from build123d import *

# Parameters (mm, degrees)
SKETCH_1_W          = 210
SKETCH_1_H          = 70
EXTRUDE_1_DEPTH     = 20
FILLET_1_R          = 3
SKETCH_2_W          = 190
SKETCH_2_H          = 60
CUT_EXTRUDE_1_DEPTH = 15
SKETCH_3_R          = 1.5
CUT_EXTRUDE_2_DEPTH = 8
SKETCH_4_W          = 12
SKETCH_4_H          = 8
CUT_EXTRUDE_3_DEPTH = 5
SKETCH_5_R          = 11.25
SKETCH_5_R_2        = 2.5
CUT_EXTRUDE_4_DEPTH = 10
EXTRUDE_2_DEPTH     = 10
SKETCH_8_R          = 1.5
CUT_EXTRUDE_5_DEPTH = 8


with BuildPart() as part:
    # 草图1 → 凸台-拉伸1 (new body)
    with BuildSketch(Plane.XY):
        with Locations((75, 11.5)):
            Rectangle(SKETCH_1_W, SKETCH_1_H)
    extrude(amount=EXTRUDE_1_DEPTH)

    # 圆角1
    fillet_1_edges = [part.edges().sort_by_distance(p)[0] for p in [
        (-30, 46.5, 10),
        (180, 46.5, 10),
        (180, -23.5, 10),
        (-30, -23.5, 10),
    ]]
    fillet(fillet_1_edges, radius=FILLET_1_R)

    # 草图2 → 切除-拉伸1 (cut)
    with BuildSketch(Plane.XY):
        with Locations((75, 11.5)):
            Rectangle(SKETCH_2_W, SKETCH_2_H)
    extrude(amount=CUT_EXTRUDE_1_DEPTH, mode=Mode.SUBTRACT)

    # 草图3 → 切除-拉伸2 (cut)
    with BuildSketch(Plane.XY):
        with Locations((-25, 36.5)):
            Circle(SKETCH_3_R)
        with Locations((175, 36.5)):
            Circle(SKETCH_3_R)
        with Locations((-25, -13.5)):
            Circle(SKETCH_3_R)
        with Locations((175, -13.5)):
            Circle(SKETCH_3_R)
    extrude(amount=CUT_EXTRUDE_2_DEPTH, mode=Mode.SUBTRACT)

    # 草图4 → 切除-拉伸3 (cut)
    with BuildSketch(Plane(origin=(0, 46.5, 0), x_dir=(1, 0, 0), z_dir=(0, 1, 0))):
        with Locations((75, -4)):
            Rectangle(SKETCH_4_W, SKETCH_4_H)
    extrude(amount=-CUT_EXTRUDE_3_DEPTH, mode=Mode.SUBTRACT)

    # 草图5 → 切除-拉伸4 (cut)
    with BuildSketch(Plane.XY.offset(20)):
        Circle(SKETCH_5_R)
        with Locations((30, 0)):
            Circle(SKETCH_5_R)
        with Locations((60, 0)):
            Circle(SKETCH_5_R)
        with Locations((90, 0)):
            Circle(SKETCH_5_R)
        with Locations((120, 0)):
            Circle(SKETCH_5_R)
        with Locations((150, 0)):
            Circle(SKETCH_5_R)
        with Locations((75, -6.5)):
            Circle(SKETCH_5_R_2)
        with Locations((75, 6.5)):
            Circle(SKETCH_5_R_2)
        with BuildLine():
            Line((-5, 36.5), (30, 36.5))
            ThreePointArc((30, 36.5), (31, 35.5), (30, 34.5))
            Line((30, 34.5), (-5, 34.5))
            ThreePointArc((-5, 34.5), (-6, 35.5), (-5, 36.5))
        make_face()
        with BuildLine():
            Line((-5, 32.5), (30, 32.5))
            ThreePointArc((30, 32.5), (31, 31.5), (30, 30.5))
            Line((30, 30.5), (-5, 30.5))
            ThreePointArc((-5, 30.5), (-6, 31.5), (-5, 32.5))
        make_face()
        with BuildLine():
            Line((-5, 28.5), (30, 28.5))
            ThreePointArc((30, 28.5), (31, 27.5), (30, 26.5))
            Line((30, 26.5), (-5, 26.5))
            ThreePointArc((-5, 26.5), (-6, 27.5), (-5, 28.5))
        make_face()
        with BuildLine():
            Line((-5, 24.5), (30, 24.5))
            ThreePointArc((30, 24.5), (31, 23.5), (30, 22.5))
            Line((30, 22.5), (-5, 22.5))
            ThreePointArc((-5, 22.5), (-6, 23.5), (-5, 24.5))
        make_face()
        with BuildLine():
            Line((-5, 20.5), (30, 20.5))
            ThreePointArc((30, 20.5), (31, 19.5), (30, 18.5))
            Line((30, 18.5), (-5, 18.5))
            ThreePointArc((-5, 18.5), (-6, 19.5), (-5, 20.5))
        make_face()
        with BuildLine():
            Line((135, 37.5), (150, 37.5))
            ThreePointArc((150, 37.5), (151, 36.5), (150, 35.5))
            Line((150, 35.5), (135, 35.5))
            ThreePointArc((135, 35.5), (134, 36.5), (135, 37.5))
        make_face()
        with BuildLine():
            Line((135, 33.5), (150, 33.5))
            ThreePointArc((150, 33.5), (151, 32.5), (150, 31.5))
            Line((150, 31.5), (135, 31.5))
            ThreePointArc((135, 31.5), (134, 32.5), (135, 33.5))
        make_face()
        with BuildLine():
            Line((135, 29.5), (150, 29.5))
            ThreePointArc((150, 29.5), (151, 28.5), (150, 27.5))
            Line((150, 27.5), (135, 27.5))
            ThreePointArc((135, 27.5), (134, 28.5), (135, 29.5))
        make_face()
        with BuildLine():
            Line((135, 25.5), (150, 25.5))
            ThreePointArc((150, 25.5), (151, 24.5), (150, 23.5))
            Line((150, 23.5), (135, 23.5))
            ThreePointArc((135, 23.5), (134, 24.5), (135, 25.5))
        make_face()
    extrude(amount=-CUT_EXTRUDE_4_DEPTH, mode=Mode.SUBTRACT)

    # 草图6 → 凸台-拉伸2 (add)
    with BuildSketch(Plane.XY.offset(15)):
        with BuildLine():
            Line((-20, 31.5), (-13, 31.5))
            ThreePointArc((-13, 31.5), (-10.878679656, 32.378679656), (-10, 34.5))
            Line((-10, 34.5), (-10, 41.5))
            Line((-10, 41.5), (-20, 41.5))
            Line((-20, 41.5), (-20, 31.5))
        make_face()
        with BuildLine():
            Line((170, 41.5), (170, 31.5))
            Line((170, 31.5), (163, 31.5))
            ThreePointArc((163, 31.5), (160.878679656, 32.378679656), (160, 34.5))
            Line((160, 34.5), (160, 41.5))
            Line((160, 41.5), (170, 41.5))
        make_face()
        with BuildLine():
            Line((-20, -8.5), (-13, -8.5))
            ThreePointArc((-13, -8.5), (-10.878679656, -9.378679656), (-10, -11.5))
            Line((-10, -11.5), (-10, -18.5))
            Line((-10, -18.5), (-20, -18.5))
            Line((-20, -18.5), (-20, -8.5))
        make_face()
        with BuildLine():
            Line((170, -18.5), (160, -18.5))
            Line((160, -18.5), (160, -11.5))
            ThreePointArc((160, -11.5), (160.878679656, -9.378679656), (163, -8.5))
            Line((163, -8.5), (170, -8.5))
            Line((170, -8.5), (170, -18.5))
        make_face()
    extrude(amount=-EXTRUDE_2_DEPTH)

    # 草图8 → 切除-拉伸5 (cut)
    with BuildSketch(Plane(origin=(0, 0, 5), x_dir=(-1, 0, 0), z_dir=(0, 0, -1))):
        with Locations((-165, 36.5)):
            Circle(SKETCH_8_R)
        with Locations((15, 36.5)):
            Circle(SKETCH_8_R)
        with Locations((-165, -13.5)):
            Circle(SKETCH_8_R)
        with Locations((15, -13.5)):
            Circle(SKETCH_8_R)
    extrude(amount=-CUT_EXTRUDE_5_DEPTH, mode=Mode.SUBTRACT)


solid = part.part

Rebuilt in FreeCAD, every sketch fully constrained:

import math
import FreeCAD as App
import Part
import Sketcher
Q = App.Units.Quantity


def edges_at(feature, points):
    """Names of the edges that pass closest to the given points."""
    edges = feature.Shape.Edges
    near = lambda p: min(range(len(edges)), key=lambda i: edges[i].distToShape(Part.Vertex(*p))[0])
    return sorted({f"Edge{near(p) + 1}" for p in points})

doc = App.newDocument("Part")
body = doc.addObject("PartDesign::Body", "Body")

# Sketch on XY plane
sketch1 = doc.addObject("Sketcher::SketchObject", "Sketch")
body.addObject(sketch1)
sketch1.AttachmentSupport = (doc.XY_Plane, [""])
sketch1.MapMode = "FlatFace"
sketch1.addGeometry([
    Part.LineSegment(App.Vector(-30, 46, 0), App.Vector(-30, -24, 0)),
    Part.LineSegment(App.Vector(-30, -24, 0), App.Vector(180, -24, 0)),
    Part.LineSegment(App.Vector(180, -24, 0), App.Vector(180, 46, 0)),
    Part.LineSegment(App.Vector(180, 46, 0), App.Vector(-30, 46, 0)),
], False)
sketch1.addConstraint([
    Sketcher.Constraint("Coincident", 0, 2, 1, 1),
    Sketcher.Constraint("Coincident", 1, 2, 2, 1),
    Sketcher.Constraint("Coincident", 2, 2, 3, 1),
    Sketcher.Constraint("Coincident", 3, 2, 0, 1),
    Sketcher.Constraint("Vertical", 0),
    Sketcher.Constraint("Horizontal", 1),
    Sketcher.Constraint("Vertical", 2),
    Sketcher.Constraint("Horizontal", 3),
    Sketcher.Constraint("DistanceX", 1, 1, 1, 2, Q("210 mm")),
    Sketcher.Constraint("DistanceY", 0, 2, 0, 1, Q("70 mm")),
    Sketcher.Constraint("DistanceX", 0, 2, -1, 1, Q("30 mm")),
    Sketcher.Constraint("DistanceY", 0, 2, -1, 1, Q("23.5 mm")),
])
pad1 = doc.addObject("PartDesign::Pad", "Pad")
body.addObject(pad1)
pad1.Profile = sketch1
pad1.Length = 20
doc.recompute()

fillet = doc.addObject("PartDesign::Fillet", "Fillet")
body.addObject(fillet)
fillet.Base = (pad1, edges_at(pad1, [
    (-30, 46.5, 10),
    (180, 46.5, 10),
    (180, -23.5, 10),
    (-30, -23.5, 10),
]))
fillet.Radius = 3

# Sketch on XY plane
sketch2 = doc.addObject("Sketcher::SketchObject", "Sketch001")
body.addObject(sketch2)
sketch2.AttachmentSupport = (doc.XY_Plane, [""])
sketch2.MapMode = "FlatFace"
sketch2.addGeometry([
    Part.LineSegment(App.Vector(-20, 42, 0), App.Vector(-20, -18, 0)),
    Part.LineSegment(App.Vector(-20, -18, 0), App.Vector(170, -18, 0)),
    Part.LineSegment(App.Vector(170, -18, 0), App.Vector(170, 42, 0)),
    Part.LineSegment(App.Vector(170, 42, 0), App.Vector(-20, 42, 0)),
], False)
sketch2.addConstraint([
    Sketcher.Constraint("Coincident", 0, 2, 1, 1),
    Sketcher.Constraint("Coincident", 1, 2, 2, 1),
    Sketcher.Constraint("Coincident", 2, 2, 3, 1),
    Sketcher.Constraint("Coincident", 3, 2, 0, 1),
    Sketcher.Constraint("Vertical", 0),
    Sketcher.Constraint("Horizontal", 1),
    Sketcher.Constraint("Vertical", 2),
    Sketcher.Constraint("Horizontal", 3),
    Sketcher.Constraint("DistanceX", 1, 1, 1, 2, Q("190 mm")),
    Sketcher.Constraint("DistanceY", 0, 2, 0, 1, Q("60 mm")),
    Sketcher.Constraint("DistanceX", 0, 2, -1, 1, Q("20 mm")),
    Sketcher.Constraint("DistanceY", 0, 2, -1, 1, Q("18.5 mm")),
])
pocket1 = doc.addObject("PartDesign::Pocket", "Pocket")
body.addObject(pocket1)
pocket1.Profile = sketch2
pocket1.Length = 15
pocket1.Reversed = True

# Sketch on XY plane
sketch3 = doc.addObject("Sketcher::SketchObject", "Sketch002")
body.addObject(sketch3)
sketch3.AttachmentSupport = (doc.XY_Plane, [""])
sketch3.MapMode = "FlatFace"
sketch3.addGeometry([
    Part.Circle(App.Vector(-25, 36.5, 0), App.Vector(0, 0, 1), 1.5),
    Part.Circle(App.Vector(175, 36.5, 0), App.Vector(0, 0, 1), 1.5),
    Part.Circle(App.Vector(-25, -13.5, 0), App.Vector(0, 0, 1), 1.5),
    Part.Circle(App.Vector(175, -13.5, 0), App.Vector(0, 0, 1), 1.5),
], False)
sketch3.addConstraint([
    Sketcher.Constraint("Equal", 0, 1),
    Sketcher.Constraint("Equal", 1, 2),
    Sketcher.Constraint("Equal", 2, 3),
    Sketcher.Constraint("Horizontal", 0, 3, 1, 3),
    Sketcher.Constraint("Horizontal", 2, 3, 3, 3),
    Sketcher.Constraint("Vertical", 0, 3, 2, 3),
    Sketcher.Constraint("Vertical", 1, 3, 3, 3),
    Sketcher.Constraint("Diameter", 0, Q("3 mm")),
    Sketcher.Constraint("DistanceX", 0, 3, -1, 1, Q("25 mm")),
    Sketcher.Constraint("DistanceX", -1, 1, 1, 3, Q("175 mm")),
    Sketcher.Constraint("DistanceY", 2, 3, 0, 3, Q("50 mm")),
    Sketcher.Constraint("DistanceY", -1, 1, 0, 3, Q("36.5 mm")),
])
pocket2 = doc.addObject("PartDesign::Pocket", "Pocket001")
body.addObject(pocket2)
pocket2.Profile = sketch3
pocket2.Length = 8
pocket2.Reversed = True

# Sketch on XZ plane
sketch4 = doc.addObject("Sketcher::SketchObject", "Sketch003")
body.addObject(sketch4)
sketch4.AttachmentSupport = (doc.XZ_Plane, [""])
sketch4.MapMode = "FlatFace"
sketch4.AttachmentOffset = App.Placement(App.Vector(0, 0, -46.5), App.Rotation())
sketch4.addGeometry([
    Part.LineSegment(App.Vector(69, 0, 0), App.Vector(69, 8, 0)),
    Part.LineSegment(App.Vector(69, 8, 0), App.Vector(81, 8, 0)),
    Part.LineSegment(App.Vector(81, 8, 0), App.Vector(81, 0, 0)),
    Part.LineSegment(App.Vector(81, 0, 0), App.Vector(69, 0, 0)),
], False)
sketch4.addConstraint([
    Sketcher.Constraint("Coincident", 0, 2, 1, 1),
    Sketcher.Constraint("Coincident", 1, 2, 2, 1),
    Sketcher.Constraint("Coincident", 2, 2, 3, 1),
    Sketcher.Constraint("Coincident", 3, 2, 0, 1),
    Sketcher.Constraint("Vertical", 0),
    Sketcher.Constraint("Horizontal", 1),
    Sketcher.Constraint("Vertical", 2),
    Sketcher.Constraint("Horizontal", 3),
    Sketcher.Constraint("PointOnObject", 2, 2, -1),
    Sketcher.Constraint("DistanceX", 1, 1, 1, 2, Q("12 mm")),
    Sketcher.Constraint("DistanceY", 0, 1, 0, 2, Q("8 mm")),
    Sketcher.Constraint("DistanceX", -1, 1, 0, 2, Q("69 mm")),
])
pocket3 = doc.addObject("PartDesign::Pocket", "Pocket002")
body.addObject(pocket3)
pocket3.Profile = sketch4
pocket3.Length = 5
pocket3.Reversed = True

# Sketch on XY plane
sketch5 = doc.addObject("Sketcher::SketchObject", "Sketch004")
body.addObject(sketch5)
sketch5.AttachmentSupport = (doc.XY_Plane, [""])
sketch5.MapMode = "FlatFace"
sketch5.AttachmentOffset = App.Placement(App.Vector(0, 0, 20), App.Rotation())
sketch5.addGeometry([
    Part.Circle(App.Vector(0, 0, 0), App.Vector(0, 0, 1), 11.2),  # 0
    Part.Circle(App.Vector(30, 0, 0), App.Vector(0, 0, 1), 11.2),  # 1
    Part.Circle(App.Vector(60, 0, 0), App.Vector(0, 0, 1), 11.2),  # 2
    Part.Circle(App.Vector(90, 0, 0), App.Vector(0, 0, 1), 11.2),  # 3
    Part.Circle(App.Vector(120, 0, 0), App.Vector(0, 0, 1), 11.2),  # 4
    Part.Circle(App.Vector(150, 0, 0), App.Vector(0, 0, 1), 11.2),  # 5
    Part.Circle(App.Vector(75, -6.5, 0), App.Vector(0, 0, 1), 2.5),  # 6
    Part.Circle(App.Vector(75, 6.5, 0), App.Vector(0, 0, 1), 2.5),  # 7
    Part.LineSegment(App.Vector(30, 36.5, 0), App.Vector(-5, 36.5, 0)),  # 8
    Part.ArcOfCircle(Part.Circle(App.Vector(-5, 35.5, 0), App.Vector(0, 0, 1), 1), math.radians(90), math.radians(270)),  # 9
    Part.LineSegment(App.Vector(-5, 34.5, 0), App.Vector(30, 34.5, 0)),  # 10
    Part.ArcOfCircle(Part.Circle(App.Vector(30, 35.5, 0), App.Vector(0, 0, 1), 1), math.radians(-90), math.radians(90)),  # 11
    Part.LineSegment(App.Vector(30, 32.5, 0), App.Vector(-5, 32.5, 0)),  # 12
    Part.ArcOfCircle(Part.Circle(App.Vector(-5, 31.5, 0), App.Vector(0, 0, 1), 1), math.radians(90), math.radians(270)),  # 13
    Part.LineSegment(App.Vector(-5, 30.5, 0), App.Vector(30, 30.5, 0)),  # 14
    Part.ArcOfCircle(Part.Circle(App.Vector(30, 31.5, 0), App.Vector(0, 0, 1), 1), math.radians(-90), math.radians(90)),  # 15
    Part.LineSegment(App.Vector(30, 28.5, 0), App.Vector(-5, 28.5, 0)),  # 16
    Part.ArcOfCircle(Part.Circle(App.Vector(-5, 27.5, 0), App.Vector(0, 0, 1), 1), math.radians(90), math.radians(270)),  # 17
    Part.LineSegment(App.Vector(-5, 26.5, 0), App.Vector(30, 26.5, 0)),  # 18
    Part.ArcOfCircle(Part.Circle(App.Vector(30, 27.5, 0), App.Vector(0, 0, 1), 1), math.radians(-90), math.radians(90)),  # 19
    Part.LineSegment(App.Vector(30, 24.5, 0), App.Vector(-5, 24.5, 0)),  # 20
    Part.ArcOfCircle(Part.Circle(App.Vector(-5, 23.5, 0), App.Vector(0, 0, 1), 1), math.radians(90), math.radians(270)),  # 21
    Part.LineSegment(App.Vector(-5, 22.5, 0), App.Vector(30, 22.5, 0)),  # 22
    Part.ArcOfCircle(Part.Circle(App.Vector(30, 23.5, 0), App.Vector(0, 0, 1), 1), math.radians(-90), math.radians(90)),  # 23
    Part.LineSegment(App.Vector(30, 20.5, 0), App.Vector(-5, 20.5, 0)),  # 24
    Part.ArcOfCircle(Part.Circle(App.Vector(-5, 19.5, 0), App.Vector(0, 0, 1), 1), math.radians(90), math.radians(270)),  # 25
    Part.LineSegment(App.Vector(-5, 18.5, 0), App.Vector(30, 18.5, 0)),  # 26
    Part.ArcOfCircle(Part.Circle(App.Vector(30, 19.5, 0), App.Vector(0, 0, 1), 1), math.radians(-90), math.radians(90)),  # 27
    Part.LineSegment(App.Vector(150, 37.5, 0), App.Vector(135, 37.5, 0)),  # 28
    Part.ArcOfCircle(Part.Circle(App.Vector(135, 36.5, 0), App.Vector(0, 0, 1), 1), math.radians(90), math.radians(270)),  # 29
    Part.LineSegment(App.Vector(135, 35.5, 0), App.Vector(150, 35.5, 0)),  # 30
    Part.ArcOfCircle(Part.Circle(App.Vector(150, 36.5, 0), App.Vector(0, 0, 1), 1), math.radians(-90), math.radians(90)),  # 31
    Part.LineSegment(App.Vector(150, 33.5, 0), App.Vector(135, 33.5, 0)),  # 32
    Part.ArcOfCircle(Part.Circle(App.Vector(135, 32.5, 0), App.Vector(0, 0, 1), 1), math.radians(90), math.radians(270)),  # 33
    Part.LineSegment(App.Vector(135, 31.5, 0), App.Vector(150, 31.5, 0)),  # 34
    Part.ArcOfCircle(Part.Circle(App.Vector(150, 32.5, 0), App.Vector(0, 0, 1), 1), math.radians(-90), math.radians(90)),  # 35
    Part.LineSegment(App.Vector(150, 29.5, 0), App.Vector(135, 29.5, 0)),  # 36
    Part.ArcOfCircle(Part.Circle(App.Vector(135, 28.5, 0), App.Vector(0, 0, 1), 1), math.radians(90), math.radians(270)),  # 37
    Part.LineSegment(App.Vector(135, 27.5, 0), App.Vector(150, 27.5, 0)),  # 38
    Part.ArcOfCircle(Part.Circle(App.Vector(150, 28.5, 0), App.Vector(0, 0, 1), 1), math.radians(-90), math.radians(90)),  # 39
    Part.LineSegment(App.Vector(150, 25.5, 0), App.Vector(135, 25.5, 0)),  # 40
    Part.ArcOfCircle(Part.Circle(App.Vector(135, 24.5, 0), App.Vector(0, 0, 1), 1), math.radians(90), math.radians(270)),  # 41
    Part.LineSegment(App.Vector(135, 23.5, 0), App.Vector(150, 23.5, 0)),  # 42
    Part.ArcOfCircle(Part.Circle(App.Vector(150, 24.5, 0), App.Vector(0, 0, 1), 1), math.radians(-90), math.radians(90)),  # 43
], False)
sketch5.addConstraint([
    Sketcher.Constraint("Tangent", 8, 2, 9, 1),
    Sketcher.Constraint("Tangent", 9, 2, 10, 1),
    Sketcher.Constraint("Tangent", 10, 2, 11, 1),
    Sketcher.Constraint("Tangent", 11, 2, 8, 1),
    Sketcher.Constraint("Tangent", 12, 2, 13, 1),
    Sketcher.Constraint("Tangent", 13, 2, 14, 1),
    Sketcher.Constraint("Tangent", 14, 2, 15, 1),
    Sketcher.Constraint("Tangent", 15, 2, 12, 1),
    Sketcher.Constraint("Tangent", 16, 2, 17, 1),
    Sketcher.Constraint("Tangent", 17, 2, 18, 1),
    Sketcher.Constraint("Tangent", 18, 2, 19, 1),
    Sketcher.Constraint("Tangent", 19, 2, 16, 1),
    Sketcher.Constraint("Tangent", 20, 2, 21, 1),
    Sketcher.Constraint("Tangent", 21, 2, 22, 1),
    Sketcher.Constraint("Tangent", 22, 2, 23, 1),
    Sketcher.Constraint("Tangent", 23, 2, 20, 1),
    Sketcher.Constraint("Tangent", 24, 2, 25, 1),
    Sketcher.Constraint("Tangent", 25, 2, 26, 1),
    Sketcher.Constraint("Tangent", 26, 2, 27, 1),
    Sketcher.Constraint("Tangent", 27, 2, 24, 1),
    Sketcher.Constraint("Tangent", 28, 2, 29, 1),
    Sketcher.Constraint("Tangent", 29, 2, 30, 1),
    Sketcher.Constraint("Tangent", 30, 2, 31, 1),
    Sketcher.Constraint("Tangent", 31, 2, 28, 1),
    Sketcher.Constraint("Tangent", 32, 2, 33, 1),
    Sketcher.Constraint("Tangent", 33, 2, 34, 1),
    Sketcher.Constraint("Tangent", 34, 2, 35, 1),
    Sketcher.Constraint("Tangent", 35, 2, 32, 1),
    Sketcher.Constraint("Tangent", 36, 2, 37, 1),
    Sketcher.Constraint("Tangent", 37, 2, 38, 1),
    Sketcher.Constraint("Tangent", 38, 2, 39, 1),
    Sketcher.Constraint("Tangent", 39, 2, 36, 1),
    Sketcher.Constraint("Tangent", 40, 2, 41, 1),
    Sketcher.Constraint("Tangent", 41, 2, 42, 1),
    Sketcher.Constraint("Tangent", 42, 2, 43, 1),
    Sketcher.Constraint("Tangent", 43, 2, 40, 1),
    Sketcher.Constraint("Horizontal", 8),
    Sketcher.Constraint("Horizontal", 10),
    Sketcher.Constraint("Horizontal", 12),
    Sketcher.Constraint("Horizontal", 14),
    Sketcher.Constraint("Horizontal", 16),
    Sketcher.Constraint("Horizontal", 18),
    Sketcher.Constraint("Horizontal", 20),
    Sketcher.Constraint("Horizontal", 22),
    Sketcher.Constraint("Horizontal", 24),
    Sketcher.Constraint("Horizontal", 26),
    Sketcher.Constraint("Horizontal", 28),
    Sketcher.Constraint("Horizontal", 30),
    Sketcher.Constraint("Horizontal", 32),
    Sketcher.Constraint("Horizontal", 34),
    Sketcher.Constraint("Horizontal", 36),
    Sketcher.Constraint("Horizontal", 38),
    Sketcher.Constraint("Horizontal", 40),
    Sketcher.Constraint("Horizontal", 42),
    Sketcher.Constraint("Coincident", 0, 3, -1, 1),
    Sketcher.Constraint("Equal", 0, 1),
    Sketcher.Constraint("Equal", 1, 2),
    Sketcher.Constraint("Equal", 2, 3),
    Sketcher.Constraint("Equal", 3, 4),
    Sketcher.Constraint("Equal", 4, 5),
    Sketcher.Constraint("Equal", 6, 7),
    Sketcher.Constraint("Equal", 11, 13),
    Sketcher.Constraint("Equal", 15, 17),
    Sketcher.Constraint("Equal", 19, 21),
    Sketcher.Constraint("Equal", 23, 25),
    Sketcher.Constraint("Equal", 27, 29),
    Sketcher.Constraint("Equal", 31, 33),
    Sketcher.Constraint("Equal", 35, 37),
    Sketcher.Constraint("Equal", 39, 41),
    Sketcher.Constraint("Symmetric", 6, 3, 7, 3, -1),
    Sketcher.Constraint("PointOnObject", 1, 3, -1),
    Sketcher.Constraint("PointOnObject", 2, 3, -1),
    Sketcher.Constraint("PointOnObject", 3, 3, -1),
    Sketcher.Constraint("PointOnObject", 4, 3, -1),
    Sketcher.Constraint("PointOnObject", 5, 3, -1),
    Sketcher.Constraint("Horizontal", 31, 3, 8, 2),
    Sketcher.Constraint("Horizontal", 35, 3, 12, 2),
    Sketcher.Constraint("Horizontal", 39, 3, 16, 2),
    Sketcher.Constraint("Horizontal", 43, 3, 20, 2),
    Sketcher.Constraint("Vertical", 1, 3, 11, 3),
    Sketcher.Constraint("Vertical", 9, 3, 13, 3),
    Sketcher.Constraint("Vertical", 11, 3, 15, 3),
    Sketcher.Constraint("Vertical", 13, 3, 17, 3),
    Sketcher.Constraint("Vertical", 15, 3, 19, 3),
    Sketcher.Constraint("Vertical", 17, 3, 21, 3),
    Sketcher.Constraint("Vertical", 19, 3, 23, 3),
    Sketcher.Constraint("Vertical", 21, 3, 25, 3),
    Sketcher.Constraint("Vertical", 23, 3, 27, 3),
    Sketcher.Constraint("Vertical", 5, 3, 31, 3),
    Sketcher.Constraint("Vertical", 29, 3, 33, 3),
    Sketcher.Constraint("Vertical", 31, 3, 35, 3),
    Sketcher.Constraint("Vertical", 33, 3, 37, 3),
    Sketcher.Constraint("Vertical", 35, 3, 39, 3),
    Sketcher.Constraint("Vertical", 37, 3, 41, 3),
    Sketcher.Constraint("Vertical", 39, 3, 43, 3),
    Sketcher.Constraint("Diameter", 6, Q("5 mm")),
    Sketcher.Constraint("Radius", 9, Q("1 mm")),
    Sketcher.Constraint("Diameter", 0, Q("22.5 mm")),
    Sketcher.Constraint("DistanceX", 8, 2, 8, 1, Q("35 mm")),
    Sketcher.Constraint("DistanceX", 28, 2, 28, 1, Q("15 mm")),
    Sketcher.Constraint("DistanceX", -1, 1, 1, 3, Q("30 mm")),
    Sketcher.Constraint("DistanceX", -1, 1, 2, 3, Q("60 mm")),
    Sketcher.Constraint("DistanceX", -1, 1, 3, 3, Q("90 mm")),
    Sketcher.Constraint("DistanceX", -1, 1, 4, 3, Q("120 mm")),
    Sketcher.Constraint("DistanceX", -1, 1, 5, 3, Q("150 mm")),
    Sketcher.Constraint("DistanceX", -1, 1, 6, 3, Q("75 mm")),
    Sketcher.Constraint("DistanceY", 6, 3, -1, 1, Q("6.5 mm")),
    Sketcher.Constraint("DistanceY", -1, 1, 9, 3, Q("35.5 mm")),
    Sketcher.Constraint("DistanceY", -1, 1, 13, 3, Q("31.5 mm")),
    Sketcher.Constraint("DistanceY", -1, 1, 17, 3, Q("27.5 mm")),
    Sketcher.Constraint("DistanceY", -1, 1, 21, 3, Q("23.5 mm")),
    Sketcher.Constraint("DistanceY", -1, 1, 25, 3, Q("19.5 mm")),
])
pocket4 = doc.addObject("PartDesign::Pocket", "Pocket003")
body.addObject(pocket4)
pocket4.Profile = sketch5
pocket4.Length = 10

# Sketch on XY plane
sketch6 = doc.addObject("Sketcher::SketchObject", "Sketch005")
body.addObject(sketch6)
sketch6.AttachmentSupport = (doc.XY_Plane, [""])
sketch6.MapMode = "FlatFace"
sketch6.AttachmentOffset = App.Placement(App.Vector(0, 0, 15), App.Rotation())
sketch6.addGeometry([
    Part.LineSegment(App.Vector(-20, 31.5, 0), App.Vector(-13, 31.5, 0)),  # 0
    Part.ArcOfCircle(Part.Circle(App.Vector(-13, 34.5, 0), App.Vector(0, 0, 1), 3), math.radians(-90), math.radians(0)),  # 1
    Part.LineSegment(App.Vector(-10, 34.5, 0), App.Vector(-10, 41.5, 0)),  # 2
    Part.LineSegment(App.Vector(-10, 41.5, 0), App.Vector(-20, 41.5, 0)),  # 3
    Part.LineSegment(App.Vector(-20, 41.5, 0), App.Vector(-20, 31.5, 0)),  # 4
    Part.LineSegment(App.Vector(170, 31.5, 0), App.Vector(170, 41.5, 0)),  # 5
    Part.LineSegment(App.Vector(170, 41.5, 0), App.Vector(160, 41.5, 0)),  # 6
    Part.LineSegment(App.Vector(160, 41.5, 0), App.Vector(160, 34.5, 0)),  # 7
    Part.ArcOfCircle(Part.Circle(App.Vector(163, 34.5, 0), App.Vector(0, 0, 1), 3), math.radians(180), math.radians(270)),  # 8
    Part.LineSegment(App.Vector(163, 31.5, 0), App.Vector(170, 31.5, 0)),  # 9
    Part.LineSegment(App.Vector(-13, -8.5, 0), App.Vector(-20, -8.5, 0)),  # 10
    Part.LineSegment(App.Vector(-20, -8.5, 0), App.Vector(-20, -18.5, 0)),  # 11
    Part.LineSegment(App.Vector(-20, -18.5, 0), App.Vector(-10, -18.5, 0)),  # 12
    Part.LineSegment(App.Vector(-10, -18.5, 0), App.Vector(-10, -11.5, 0)),  # 13
    Part.ArcOfCircle(Part.Circle(App.Vector(-13, -11.5, 0), App.Vector(0, 0, 1), 3), math.radians(0), math.radians(90)),  # 14
    Part.LineSegment(App.Vector(160, -18.5, 0), App.Vector(170, -18.5, 0)),  # 15
    Part.LineSegment(App.Vector(170, -18.5, 0), App.Vector(170, -8.5, 0)),  # 16
    Part.LineSegment(App.Vector(170, -8.5, 0), App.Vector(163, -8.5, 0)),  # 17
    Part.ArcOfCircle(Part.Circle(App.Vector(163, -11.5, 0), App.Vector(0, 0, 1), 3), math.radians(90), math.radians(180)),  # 18
    Part.LineSegment(App.Vector(160, -11.5, 0), App.Vector(160, -18.5, 0)),  # 19
], False)
sketch6.addConstraint([
    Sketcher.Constraint("Tangent", 0, 2, 1, 1),
    Sketcher.Constraint("Tangent", 1, 2, 2, 1),
    Sketcher.Constraint("Coincident", 2, 2, 3, 1),
    Sketcher.Constraint("Coincident", 3, 2, 4, 1),
    Sketcher.Constraint("Coincident", 4, 2, 0, 1),
    Sketcher.Constraint("Coincident", 5, 2, 6, 1),
    Sketcher.Constraint("Coincident", 6, 2, 7, 1),
    Sketcher.Constraint("Tangent", 7, 2, 8, 1),
    Sketcher.Constraint("Tangent", 8, 2, 9, 1),
    Sketcher.Constraint("Coincident", 9, 2, 5, 1),
    Sketcher.Constraint("Coincident", 10, 2, 11, 1),
    Sketcher.Constraint("Coincident", 11, 2, 12, 1),
    Sketcher.Constraint("Coincident", 12, 2, 13, 1),
    Sketcher.Constraint("Tangent", 13, 2, 14, 1),
    Sketcher.Constraint("Tangent", 14, 2, 10, 1),
    Sketcher.Constraint("Coincident", 15, 2, 16, 1),
    Sketcher.Constraint("Coincident", 16, 2, 17, 1),
    Sketcher.Constraint("Tangent", 17, 2, 18, 1),
    Sketcher.Constraint("Tangent", 18, 2, 19, 1),
    Sketcher.Constraint("Coincident", 19, 2, 15, 1),
    Sketcher.Constraint("Horizontal", 0),
    Sketcher.Constraint("Vertical", 2),
    Sketcher.Constraint("Horizontal", 3),
    Sketcher.Constraint("Vertical", 4),
    Sketcher.Constraint("Vertical", 5),
    Sketcher.Constraint("Horizontal", 6),
    Sketcher.Constraint("Vertical", 7),
    Sketcher.Constraint("Horizontal", 9),
    Sketcher.Constraint("Horizontal", 10),
    Sketcher.Constraint("Vertical", 11),
    Sketcher.Constraint("Horizontal", 12),
    Sketcher.Constraint("Vertical", 13),
    Sketcher.Constraint("Horizontal", 15),
    Sketcher.Constraint("Vertical", 16),
    Sketcher.Constraint("Horizontal", 17),
    Sketcher.Constraint("Vertical", 19),
    Sketcher.Constraint("Equal", 1, 8),
    Sketcher.Constraint("Equal", 8, 14),
    Sketcher.Constraint("Equal", 14, 18),
    Sketcher.Constraint("Horizontal", 1, 3, 8, 3),
    Sketcher.Constraint("Horizontal", 14, 3, 18, 3),
    Sketcher.Constraint("Horizontal", 3, 2, 5, 2),
    Sketcher.Constraint("Horizontal", 12, 2, 15, 2),
    Sketcher.Constraint("Vertical", 1, 3, 14, 3),
    Sketcher.Constraint("Vertical", 8, 3, 18, 3),
    Sketcher.Constraint("Vertical", 4, 2, 10, 2),
    Sketcher.Constraint("Vertical", 9, 2, 15, 2),
    Sketcher.Constraint("Equal", 3, 6),
    Sketcher.Constraint("Equal", 17, 2),
    Sketcher.Constraint("Equal", 5, 11),
    Sketcher.Constraint("Radius", 1, Q("3 mm")),
    Sketcher.Constraint("DistanceX", 0, 1, 0, 2, Q("7 mm")),
    Sketcher.Constraint("DistanceX", 1, 3, -1, 1, Q("13 mm")),
    Sketcher.Constraint("DistanceX", -1, 1, 8, 3, Q("163 mm")),
    Sketcher.Constraint("DistanceY", 14, 3, 1, 3, Q("46 mm")),
    Sketcher.Constraint("DistanceY", -1, 1, 1, 3, Q("34.5 mm")),
])
pad2 = doc.addObject("PartDesign::Pad", "Pad001")
body.addObject(pad2)
pad2.Profile = sketch6
pad2.Length = 10
pad2.Reversed = True

# Sketch on XY plane
sketch7 = doc.addObject("Sketcher::SketchObject", "Sketch006")
body.addObject(sketch7)
sketch7.AttachmentSupport = (doc.XY_Plane, [""])
sketch7.MapMode = "FlatFace"
sketch7.AttachmentOffset = App.Placement(App.Vector(0, 0, 5), App.Rotation())
sketch7.addGeometry([
    Part.Circle(App.Vector(165, 36.5, 0), App.Vector(0, 0, 1), 1.5),
    Part.Circle(App.Vector(-15, 36.5, 0), App.Vector(0, 0, 1), 1.5),
    Part.Circle(App.Vector(165, -13.5, 0), App.Vector(0, 0, 1), 1.5),
    Part.Circle(App.Vector(-15, -13.5, 0), App.Vector(0, 0, 1), 1.5),
], False)
sketch7.addConstraint([
    Sketcher.Constraint("Equal", 0, 1),
    Sketcher.Constraint("Equal", 1, 2),
    Sketcher.Constraint("Equal", 2, 3),
    Sketcher.Constraint("Horizontal", 0, 3, 1, 3),
    Sketcher.Constraint("Horizontal", 2, 3, 3, 3),
    Sketcher.Constraint("Vertical", 0, 3, 2, 3),
    Sketcher.Constraint("Vertical", 1, 3, 3, 3),
    Sketcher.Constraint("Diameter", 0, Q("3 mm")),
    Sketcher.Constraint("DistanceX", -1, 1, 0, 3, Q("165 mm")),
    Sketcher.Constraint("DistanceX", 1, 3, -1, 1, Q("15 mm")),
    Sketcher.Constraint("DistanceY", 2, 3, 0, 3, Q("50 mm")),
    Sketcher.Constraint("DistanceY", -1, 1, 0, 3, Q("36.5 mm")),
])
pocket5 = doc.addObject("PartDesign::Pocket", "Pocket004")
body.addObject(pocket5)
pocket5.Profile = sketch7
pocket5.Length = 8
pocket5.Reversed = True

doc.recompute()
